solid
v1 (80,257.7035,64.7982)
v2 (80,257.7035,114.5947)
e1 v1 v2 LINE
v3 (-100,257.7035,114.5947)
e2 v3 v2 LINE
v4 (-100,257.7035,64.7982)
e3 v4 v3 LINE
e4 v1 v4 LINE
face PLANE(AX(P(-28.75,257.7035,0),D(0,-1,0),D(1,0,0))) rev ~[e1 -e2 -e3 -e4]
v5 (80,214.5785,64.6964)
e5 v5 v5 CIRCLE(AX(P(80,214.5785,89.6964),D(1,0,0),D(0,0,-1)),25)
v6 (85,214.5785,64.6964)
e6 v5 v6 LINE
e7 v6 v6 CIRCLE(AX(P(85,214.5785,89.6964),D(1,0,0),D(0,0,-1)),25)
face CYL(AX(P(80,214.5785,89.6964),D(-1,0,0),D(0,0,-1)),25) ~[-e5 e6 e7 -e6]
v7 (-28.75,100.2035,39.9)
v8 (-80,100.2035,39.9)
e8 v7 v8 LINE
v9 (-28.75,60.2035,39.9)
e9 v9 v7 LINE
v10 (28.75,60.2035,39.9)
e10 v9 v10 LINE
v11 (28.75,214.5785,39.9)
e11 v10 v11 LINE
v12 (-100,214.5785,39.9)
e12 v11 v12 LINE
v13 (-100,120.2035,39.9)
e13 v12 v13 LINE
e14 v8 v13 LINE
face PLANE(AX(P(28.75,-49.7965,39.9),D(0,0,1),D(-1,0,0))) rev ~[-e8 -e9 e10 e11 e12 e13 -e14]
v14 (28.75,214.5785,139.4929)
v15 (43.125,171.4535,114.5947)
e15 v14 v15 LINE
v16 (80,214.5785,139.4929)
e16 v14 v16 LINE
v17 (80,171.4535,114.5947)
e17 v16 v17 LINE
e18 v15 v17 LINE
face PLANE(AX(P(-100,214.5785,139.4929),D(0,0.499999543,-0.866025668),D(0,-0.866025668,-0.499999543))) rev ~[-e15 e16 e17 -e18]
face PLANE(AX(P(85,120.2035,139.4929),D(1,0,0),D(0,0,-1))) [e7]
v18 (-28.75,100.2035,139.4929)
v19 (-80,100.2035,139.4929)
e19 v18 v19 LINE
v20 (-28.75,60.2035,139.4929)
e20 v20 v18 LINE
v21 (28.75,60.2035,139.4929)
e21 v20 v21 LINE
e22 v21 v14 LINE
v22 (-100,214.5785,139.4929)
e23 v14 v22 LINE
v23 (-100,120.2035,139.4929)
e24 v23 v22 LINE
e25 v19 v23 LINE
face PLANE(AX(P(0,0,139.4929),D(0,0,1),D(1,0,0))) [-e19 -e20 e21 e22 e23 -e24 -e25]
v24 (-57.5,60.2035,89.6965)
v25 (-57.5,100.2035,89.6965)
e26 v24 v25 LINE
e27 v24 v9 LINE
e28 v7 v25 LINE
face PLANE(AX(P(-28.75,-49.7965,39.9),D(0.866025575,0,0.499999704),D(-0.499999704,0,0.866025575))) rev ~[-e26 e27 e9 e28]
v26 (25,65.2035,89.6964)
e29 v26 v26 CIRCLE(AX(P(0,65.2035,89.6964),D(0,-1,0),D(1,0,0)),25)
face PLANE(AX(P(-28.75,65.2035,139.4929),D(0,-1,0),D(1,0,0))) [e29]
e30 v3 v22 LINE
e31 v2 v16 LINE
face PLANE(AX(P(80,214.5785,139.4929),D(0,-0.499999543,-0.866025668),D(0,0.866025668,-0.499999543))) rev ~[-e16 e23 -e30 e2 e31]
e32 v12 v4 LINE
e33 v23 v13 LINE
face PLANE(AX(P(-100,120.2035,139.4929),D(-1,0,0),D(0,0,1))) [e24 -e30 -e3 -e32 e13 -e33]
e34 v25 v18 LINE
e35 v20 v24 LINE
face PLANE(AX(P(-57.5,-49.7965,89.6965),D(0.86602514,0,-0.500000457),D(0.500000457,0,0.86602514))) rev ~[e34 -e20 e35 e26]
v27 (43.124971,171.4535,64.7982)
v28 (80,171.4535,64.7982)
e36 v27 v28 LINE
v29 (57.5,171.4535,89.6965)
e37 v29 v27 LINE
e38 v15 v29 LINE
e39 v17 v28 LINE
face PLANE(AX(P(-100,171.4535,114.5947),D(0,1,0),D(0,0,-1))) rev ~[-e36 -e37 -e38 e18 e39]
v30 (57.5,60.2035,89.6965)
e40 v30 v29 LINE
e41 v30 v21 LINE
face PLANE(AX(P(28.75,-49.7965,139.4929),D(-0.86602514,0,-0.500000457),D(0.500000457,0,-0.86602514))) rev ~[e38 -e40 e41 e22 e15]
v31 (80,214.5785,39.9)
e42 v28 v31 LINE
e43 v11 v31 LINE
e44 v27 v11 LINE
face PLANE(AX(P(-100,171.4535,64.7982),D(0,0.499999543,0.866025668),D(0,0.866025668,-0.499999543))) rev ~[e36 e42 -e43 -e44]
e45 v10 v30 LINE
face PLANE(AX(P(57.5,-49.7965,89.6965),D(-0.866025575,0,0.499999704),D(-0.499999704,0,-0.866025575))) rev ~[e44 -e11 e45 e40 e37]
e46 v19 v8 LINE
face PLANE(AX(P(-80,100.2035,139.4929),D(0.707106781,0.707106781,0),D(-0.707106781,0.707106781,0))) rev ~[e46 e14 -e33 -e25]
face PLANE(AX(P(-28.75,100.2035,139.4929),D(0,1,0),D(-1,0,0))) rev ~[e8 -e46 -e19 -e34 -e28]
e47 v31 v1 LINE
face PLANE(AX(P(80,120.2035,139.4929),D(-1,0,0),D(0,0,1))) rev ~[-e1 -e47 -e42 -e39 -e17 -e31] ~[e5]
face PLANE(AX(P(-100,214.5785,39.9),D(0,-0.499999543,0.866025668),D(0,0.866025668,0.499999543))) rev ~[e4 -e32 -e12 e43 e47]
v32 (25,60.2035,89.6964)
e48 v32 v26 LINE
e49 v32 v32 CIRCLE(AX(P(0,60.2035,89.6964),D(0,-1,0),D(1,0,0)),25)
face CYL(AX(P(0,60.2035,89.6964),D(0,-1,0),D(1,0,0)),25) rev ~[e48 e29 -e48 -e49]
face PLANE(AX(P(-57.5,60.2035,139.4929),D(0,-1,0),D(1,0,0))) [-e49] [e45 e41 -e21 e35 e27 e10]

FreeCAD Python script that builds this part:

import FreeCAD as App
import Part
import Sketcher

V = App.Vector
Q = App.Units.Quantity

doc = App.newDocument("Part")
body = doc.addObject("PartDesign::Body", "Body")

sketch1 = body.newObject("Sketcher::SketchObject", "Sketch")
sketch1.AttachmentSupport = (doc.getObject("XY_Plane"), [""])
sketch1.MapMode = "FlatFace"
sketch1.addGeometry([
    Part.LineSegment(V(29, -50, 0), V(58, 0, 0)),
    Part.LineSegment(V(58, 0, 0), V(29, 50, 0)),
    Part.LineSegment(V(29, 50, 0), V(-29, 50, 0)),
    Part.LineSegment(V(-29, 50, 0), V(-58, 0, 0)),
    Part.LineSegment(V(-58, 0, 0), V(-29, -50, 0)),
    Part.LineSegment(V(-29, -50, 0), V(29, -50, 0)),
], False)
sketch1.addConstraint([
    Sketcher.Constraint("Coincident", 0, 2, 1, 1),
    Sketcher.Constraint("Coincident", 1, 2, 2, 1),
    Sketcher.Constraint("Coincident", 2, 2, 3, 1),
    Sketcher.Constraint("Coincident", 3, 2, 4, 1),
    Sketcher.Constraint("Coincident", 4, 2, 5, 1),
    Sketcher.Constraint("Coincident", 5, 2, 0, 1),
    Sketcher.Constraint("Horizontal", 2),
    Sketcher.Constraint("Horizontal", 5),
    Sketcher.Constraint("Symmetric", 0, 2, 3, 2, -1, 1),
    Sketcher.Constraint("Symmetric", 1, 2, 4, 2, -1, 1),
    Sketcher.Constraint("PointOnObject", 0, 2, -1),
    Sketcher.Constraint("Parallel", 0, 3),
    Sketcher.Constraint("Vertical", 2, 2, 4, 2),
    Sketcher.Constraint("DistanceX", 3, 2, 0, 2, Q("115 mm")),
    Sketcher.Constraint("Angle", 0, Q("60 deg")),
    Sketcher.Constraint("DistanceX", 2, 2, 2, 1, Q("57.5 mm")),
])
pad1 = body.newObject("PartDesign::Pad", "Pad")
pad1.Profile = sketch1
pad1.Length = 139.4929

sketch2 = body.newObject("Sketcher::SketchObject", "Sketch001")
sketch2.AttachmentSupport = (doc.getObject("XZ_Plane"), [""])
sketch2.MapMode = "FlatFace"
sketch2.AttachmentOffset = App.Placement(V(0, 0, 49.7965), App.Rotation())
sketch2.addGeometry([
    Part.LineSegment(V(-29, 139, 0), V(-58, 90, 0)),
    Part.LineSegment(V(-58, 90, 0), V(-29, 40, 0)),
    Part.LineSegment(V(-29, 40, 0), V(29, 40, 0)),
    Part.LineSegment(V(29, 40, 0), V(58, 90, 0)),
    Part.LineSegment(V(58, 90, 0), V(29, 139, 0)),
    Part.LineSegment(V(29, 139, 0), V(-29, 139, 0)),
], False)
sketch2.addConstraint([
    Sketcher.Constraint("Coincident", 0, 2, 1, 1),
    Sketcher.Constraint("Coincident", 1, 2, 2, 1),
    Sketcher.Constraint("Coincident", 2, 2, 3, 1),
    Sketcher.Constraint("Coincident", 3, 2, 4, 1),
    Sketcher.Constraint("Coincident", 4, 2, 5, 1),
    Sketcher.Constraint("Coincident", 5, 2, 0, 1),
    Sketcher.Constraint("Horizontal", 2),
    Sketcher.Constraint("Horizontal", 5),
    Sketcher.Constraint("Symmetric", 0, 2, 3, 2, -2),
    Sketcher.Constraint("Parallel", 0, 3),
    Sketcher.Constraint("Parallel", 1, 4),
    Sketcher.Constraint("Vertical", 2, 2, 4, 2),
    Sketcher.Constraint("Vertical", 1, 2, 5, 2),
    Sketcher.Constraint("DistanceX", 0, 2, 3, 2, Q("115 mm")),
    Sketcher.Constraint("Angle", 0, Q("-120 deg")),
    Sketcher.Constraint("DistanceX", 2, 1, 2, 2, Q("57.5 mm")),
    Sketcher.Constraint("DistanceY", -1, 1, 1, 2, Q("39.9 mm")),
])
pad2 = body.newObject("PartDesign::Pad", "Pad001")
pad2.Profile = sketch2
pad2.Length = 307.5
pad2.Reversed = True

sketch3 = body.newObject("Sketcher::SketchObject", "Sketch002")
sketch3.AttachmentSupport = (doc.getObject("XY_Plane"), [""])
sketch3.MapMode = "FlatFace"
sketch3.AttachmentOffset = App.Placement(V(0, 0, 139.4929), App.Rotation())
sketch3.addGeometry([
    Part.LineSegment(V(-80, 100, 0), V(-29, 100, 0)),
    Part.LineSegment(V(-29, 100, 0), V(-29, 258, 0)),
    Part.LineSegment(V(-29, 258, 0), V(-100, 258, 0)),
    Part.LineSegment(V(-100, 258, 0), V(-100, 120, 0)),
    Part.LineSegment(V(-100, 120, 0), V(-80, 100, 0)),
], False)
sketch3.addConstraint([
    Sketcher.Constraint("Coincident", 0, 2, 1, 1),
    Sketcher.Constraint("Coincident", 1, 2, 2, 1),
    Sketcher.Constraint("Coincident", 2, 2, 3, 1),
    Sketcher.Constraint("Coincident", 3, 2, 4, 1),
    Sketcher.Constraint("Coincident", 4, 2, 0, 1),
    Sketcher.Constraint("Horizontal", 0),
    Sketcher.Constraint("Vertical", 1),
    Sketcher.Constraint("Horizontal", 2),
    Sketcher.Constraint("Vertical", 3),
    Sketcher.Constraint("Angle", 4, Q("-45 deg")),
    Sketcher.Constraint("DistanceY", 1, 1, 1, 2, Q("157.5 mm")),
    Sketcher.Constraint("DistanceX", 2, 2, 2, 1, Q("71.25 mm")),
    Sketcher.Constraint("DistanceY", 3, 2, 3, 1, Q("137.5 mm")),
    Sketcher.Constraint("DistanceX", 2, 2, -1, 1, Q("100 mm")),
    Sketcher.Constraint("DistanceY", -1, 1, 0, 2, Q("100.2035 mm")),
])
pad3 = body.newObject("PartDesign::Pad", "Pad002")
pad3.Profile = sketch3
pad3.Length = 99.5929
pad3.Reversed = True

sketch4 = body.newObject("Sketcher::SketchObject", "Sketch003")
sketch4.AttachmentSupport = (doc.getObject("YZ_Plane"), [""])
sketch4.MapMode = "FlatFace"
sketch4.AttachmentOffset = App.Placement(V(0, 0, -100), App.Rotation())
sketch4.addGeometry([
    Part.LineSegment(V(258, 65, 0), V(215, 40, 0)),
    Part.LineSegment(V(215, 40, 0), V(171, 65, 0)),
    Part.LineSegment(V(171, 65, 0), V(171, 115, 0)),
    Part.LineSegment(V(171, 115, 0), V(215, 139, 0)),
    Part.LineSegment(V(215, 139, 0), V(258, 115, 0)),
    Part.LineSegment(V(258, 115, 0), V(258, 65, 0)),
], False)
sketch4.addConstraint([
    Sketcher.Constraint("Coincident", 0, 2, 1, 1),
    Sketcher.Constraint("Coincident", 1, 2, 2, 1),
    Sketcher.Constraint("Coincident", 2, 2, 3, 1),
    Sketcher.Constraint("Coincident", 3, 2, 4, 1),
    Sketcher.Constraint("Coincident", 4, 2, 5, 1),
    Sketcher.Constraint("Coincident", 5, 2, 0, 1),
    Sketcher.Constraint("Vertical", 2),
    Sketcher.Constraint("Vertical", 5),
    Sketcher.Constraint("Parallel", 0, 3),
    Sketcher.Constraint("Parallel", 1, 4),
    Sketcher.Constraint("Horizontal", 2, 2, 4, 2),
    Sketcher.Constraint("Horizontal", 1, 2, 5, 2),
    Sketcher.Constraint("Vertical", 0, 2, 3, 2),
    Sketcher.Constraint("Angle", 0, Q("-150 deg")),
    Sketcher.Constraint("DistanceY", -1, 1, 0, 2, Q("39.9 mm")),
    Sketcher.Constraint("DistanceX", 2, 2, 4, 2, Q("86.25 mm")),
    Sketcher.Constraint("DistanceY", 2, 1, 2, 2, Q("49.7965 mm")),
    Sketcher.Constraint("DistanceX", -1, 1, 0, 2, Q("214.5785 mm")),
])
pad4 = body.newObject("PartDesign::Pad", "Pad003")
pad4.Profile = sketch4
pad4.Length = 180

sketch5 = body.newObject("Sketcher::SketchObject", "Sketch004")
sketch5.AttachmentSupport = (doc.getObject("YZ_Plane"), [""])
sketch5.MapMode = "FlatFace"
sketch5.AttachmentOffset = App.Placement(V(0, 0, 80), App.Rotation())
sketch5.addGeometry([
    Part.LineSegment(V(258, 139, 0), V(215, 139, 0)),
    Part.LineSegment(V(215, 139, 0), V(258, 115, 0)),
    Part.LineSegment(V(258, 115, 0), V(258, 139, 0)),
    Part.LineSegment(V(258, 40, 0), V(258, 65, 0)),
    Part.LineSegment(V(258, 65, 0), V(215, 40, 0)),
    Part.LineSegment(V(215, 40, 0), V(258, 40, 0)),
    Part.LineSegment(V(-50, 40, 0), V(0, 90, 0)),
    Part.LineSegment(V(0, 90, 0), V(50, 139, 0)),
    Part.LineSegment(V(50, 139, 0), V(-50, 139, 0)),
    Part.LineSegment(V(-50, 139, 0), V(-50, 40, 0)),
], False)
sketch5.addConstraint([
    Sketcher.Constraint("Coincident", 0, 2, 1, 1),
    Sketcher.Constraint("Coincident", 1, 2, 2, 1),
    Sketcher.Constraint("Coincident", 2, 2, 0, 1),
    Sketcher.Constraint("Coincident", 3, 2, 4, 1),
    Sketcher.Constraint("Coincident", 4, 2, 5, 1),
    Sketcher.Constraint("Coincident", 5, 2, 3, 1),
    Sketcher.Constraint("Coincident", 6, 2, 7, 1),
    Sketcher.Constraint("Coincident", 7, 2, 8, 1),
    Sketcher.Constraint("Coincident", 8, 2, 9, 1),
    Sketcher.Constraint("Coincident", 9, 2, 6, 1),
    Sketcher.Constraint("Horizontal", 0),
    Sketcher.Constraint("Vertical", 2),
    Sketcher.Constraint("Vertical", 3),
    Sketcher.Constraint("Horizontal", 5),
    Sketcher.Constraint("Horizontal", 8),
    Sketcher.Constraint("Vertical", 9),
    Sketcher.Constraint("PointOnObject", 6, 2, -2),
    Sketcher.Constraint("Parallel", 6, 7),
    Sketcher.Constraint("Horizontal", 2, 2, 7, 2),
    Sketcher.Constraint("Horizontal", 5, 2, 9, 2),
    Sketcher.Constraint("Vertical", 2, 2, 3, 2),
    Sketcher.Constraint("Vertical", 0, 2, 4, 2),
    Sketcher.Constraint("Equal", 2, 3),
    Sketcher.Constraint("Equal", 8, 9),
    Sketcher.Constraint("Equal", 6, 7),
    Sketcher.Constraint("Angle", 1, Q("-30 deg")),
    Sketcher.Constraint("DistanceY", -1, 1, 4, 2, Q("39.9 mm")),
    Sketcher.Constraint("DistanceX", 8, 2, 2, 2, Q("307.5 mm")),
    Sketcher.Constraint("DistanceX", 0, 2, 0, 1, Q("43.125 mm")),
    Sketcher.Constraint("DistanceX", 8, 2, 8, 1, Q("99.593 mm")),
])
pocket1 = body.newObject("PartDesign::Pocket", "Pocket")
pocket1.Profile = sketch5
pocket1.Type = "ThroughAll"

sketch6 = body.newObject("Sketcher::SketchObject", "Sketch005")
sketch6.AttachmentSupport = (doc.getObject("XY_Plane"), [""])
sketch6.MapMode = "FlatFace"
sketch6.addGeometry(Part.Circle(V(0, 0, 0), V(0, 0, 1), 25), False)
sketch6.addConstraint([
    Sketcher.Constraint("Coincident", 0, 3, -1, 1),
    Sketcher.Constraint("Diameter", 0, Q("50 mm")),
])
pocket2 = body.newObject("PartDesign::Pocket", "Pocket001")
pocket2.Profile = sketch6
pocket2.Length = 5
pocket2.Reversed = True

sketch7 = body.newObject("Sketcher::SketchObject", "Sketch006")
sketch7.AttachmentSupport = (doc.getObject("YZ_Plane"), [""])
sketch7.MapMode = "FlatFace"
sketch7.AttachmentOffset = App.Placement(V(0, 0, 80), App.Rotation())
sketch7.addGeometry(Part.Circle(V(215, 90, 0), V(0, 0, 1), 25), False)
sketch7.addConstraint([
    Sketcher.Constraint("Diameter", 0, Q("50 mm")),
    Sketcher.Constraint("DistanceX", -1, 1, 0, 3, Q("214.5785 mm")),
    Sketcher.Constraint("DistanceY", -1, 1, 0, 3, Q("89.6964 mm")),
])
pad5 = body.newObject("PartDesign::Pad", "Pad004")
pad5.Profile = sketch7
pad5.Length = 5

sketch8 = body.newObject("Sketcher::SketchObject", "Sketch007")
sketch8.AttachmentSupport = (doc.getObject("XY_Plane"), [""])
sketch8.MapMode = "FlatFace"
sketch8.AttachmentOffset = App.Placement(V(0, 0, 139.4929), App.Rotation())
sketch8.addGeometry([
    Part.LineSegment(V(-58, 60, 0), V(-58, -50, 0)),
    Part.LineSegment(V(-58, -50, 0), V(58, -50, 0)),
    Part.LineSegment(V(58, -50, 0), V(58, 60, 0)),
    Part.LineSegment(V(58, 60, 0), V(-58, 60, 0)),
], False)
sketch8.addConstraint([
    Sketcher.Constraint("Coincident", 0, 2, 1, 1),
    Sketcher.Constraint("Coincident", 1, 2, 2, 1),
    Sketcher.Constraint("Coincident", 2, 2, 3, 1),
    Sketcher.Constraint("Coincident", 3, 2, 0, 1),
    Sketcher.Constraint("Vertical", 0),
    Sketcher.Constraint("Horizontal", 1),
    Sketcher.Constraint("Vertical", 2),
    Sketcher.Constraint("Horizontal", 3),
    Sketcher.Constraint("DistanceX", 1, 1, 1, 2, Q("115 mm")),
    Sketcher.Constraint("DistanceY", 0, 2, 0, 1, Q("110 mm")),
    Sketcher.Constraint("DistanceX", 0, 2, -1, 1, Q("57.5 mm")),
    Sketcher.Constraint("DistanceY", 0, 2, -1, 1, Q("49.7965 mm")),
])
pocket3 = body.newObject("PartDesign::Pocket", "Pocket002")
pocket3.Profile = sketch8
pocket3.Type = "ThroughAll"

sketch9 = body.newObject("Sketcher::SketchObject", "Sketch008")
sketch9.AttachmentSupport = (doc.getObject("XZ_Plane"), [""])
sketch9.MapMode = "FlatFace"
sketch9.AttachmentOffset = App.Placement(V(0, 0, -60.2035), App.Rotation())
sketch9.addGeometry(Part.Circle(V(0, 90, 0), V(0, 0, 1), 25), False)
sketch9.addConstraint([
    Sketcher.Constraint("PointOnObject", 0, 3, -2),
    Sketcher.Constraint("Diameter", 0, Q("50 mm")),
    Sketcher.Constraint("DistanceY", -1, 1, 0, 3, Q("89.6964 mm")),
])
pocket4 = body.newObject("PartDesign::Pocket", "Pocket003")
pocket4.Profile = sketch9
pocket4.Length = 5

doc.recompute()
